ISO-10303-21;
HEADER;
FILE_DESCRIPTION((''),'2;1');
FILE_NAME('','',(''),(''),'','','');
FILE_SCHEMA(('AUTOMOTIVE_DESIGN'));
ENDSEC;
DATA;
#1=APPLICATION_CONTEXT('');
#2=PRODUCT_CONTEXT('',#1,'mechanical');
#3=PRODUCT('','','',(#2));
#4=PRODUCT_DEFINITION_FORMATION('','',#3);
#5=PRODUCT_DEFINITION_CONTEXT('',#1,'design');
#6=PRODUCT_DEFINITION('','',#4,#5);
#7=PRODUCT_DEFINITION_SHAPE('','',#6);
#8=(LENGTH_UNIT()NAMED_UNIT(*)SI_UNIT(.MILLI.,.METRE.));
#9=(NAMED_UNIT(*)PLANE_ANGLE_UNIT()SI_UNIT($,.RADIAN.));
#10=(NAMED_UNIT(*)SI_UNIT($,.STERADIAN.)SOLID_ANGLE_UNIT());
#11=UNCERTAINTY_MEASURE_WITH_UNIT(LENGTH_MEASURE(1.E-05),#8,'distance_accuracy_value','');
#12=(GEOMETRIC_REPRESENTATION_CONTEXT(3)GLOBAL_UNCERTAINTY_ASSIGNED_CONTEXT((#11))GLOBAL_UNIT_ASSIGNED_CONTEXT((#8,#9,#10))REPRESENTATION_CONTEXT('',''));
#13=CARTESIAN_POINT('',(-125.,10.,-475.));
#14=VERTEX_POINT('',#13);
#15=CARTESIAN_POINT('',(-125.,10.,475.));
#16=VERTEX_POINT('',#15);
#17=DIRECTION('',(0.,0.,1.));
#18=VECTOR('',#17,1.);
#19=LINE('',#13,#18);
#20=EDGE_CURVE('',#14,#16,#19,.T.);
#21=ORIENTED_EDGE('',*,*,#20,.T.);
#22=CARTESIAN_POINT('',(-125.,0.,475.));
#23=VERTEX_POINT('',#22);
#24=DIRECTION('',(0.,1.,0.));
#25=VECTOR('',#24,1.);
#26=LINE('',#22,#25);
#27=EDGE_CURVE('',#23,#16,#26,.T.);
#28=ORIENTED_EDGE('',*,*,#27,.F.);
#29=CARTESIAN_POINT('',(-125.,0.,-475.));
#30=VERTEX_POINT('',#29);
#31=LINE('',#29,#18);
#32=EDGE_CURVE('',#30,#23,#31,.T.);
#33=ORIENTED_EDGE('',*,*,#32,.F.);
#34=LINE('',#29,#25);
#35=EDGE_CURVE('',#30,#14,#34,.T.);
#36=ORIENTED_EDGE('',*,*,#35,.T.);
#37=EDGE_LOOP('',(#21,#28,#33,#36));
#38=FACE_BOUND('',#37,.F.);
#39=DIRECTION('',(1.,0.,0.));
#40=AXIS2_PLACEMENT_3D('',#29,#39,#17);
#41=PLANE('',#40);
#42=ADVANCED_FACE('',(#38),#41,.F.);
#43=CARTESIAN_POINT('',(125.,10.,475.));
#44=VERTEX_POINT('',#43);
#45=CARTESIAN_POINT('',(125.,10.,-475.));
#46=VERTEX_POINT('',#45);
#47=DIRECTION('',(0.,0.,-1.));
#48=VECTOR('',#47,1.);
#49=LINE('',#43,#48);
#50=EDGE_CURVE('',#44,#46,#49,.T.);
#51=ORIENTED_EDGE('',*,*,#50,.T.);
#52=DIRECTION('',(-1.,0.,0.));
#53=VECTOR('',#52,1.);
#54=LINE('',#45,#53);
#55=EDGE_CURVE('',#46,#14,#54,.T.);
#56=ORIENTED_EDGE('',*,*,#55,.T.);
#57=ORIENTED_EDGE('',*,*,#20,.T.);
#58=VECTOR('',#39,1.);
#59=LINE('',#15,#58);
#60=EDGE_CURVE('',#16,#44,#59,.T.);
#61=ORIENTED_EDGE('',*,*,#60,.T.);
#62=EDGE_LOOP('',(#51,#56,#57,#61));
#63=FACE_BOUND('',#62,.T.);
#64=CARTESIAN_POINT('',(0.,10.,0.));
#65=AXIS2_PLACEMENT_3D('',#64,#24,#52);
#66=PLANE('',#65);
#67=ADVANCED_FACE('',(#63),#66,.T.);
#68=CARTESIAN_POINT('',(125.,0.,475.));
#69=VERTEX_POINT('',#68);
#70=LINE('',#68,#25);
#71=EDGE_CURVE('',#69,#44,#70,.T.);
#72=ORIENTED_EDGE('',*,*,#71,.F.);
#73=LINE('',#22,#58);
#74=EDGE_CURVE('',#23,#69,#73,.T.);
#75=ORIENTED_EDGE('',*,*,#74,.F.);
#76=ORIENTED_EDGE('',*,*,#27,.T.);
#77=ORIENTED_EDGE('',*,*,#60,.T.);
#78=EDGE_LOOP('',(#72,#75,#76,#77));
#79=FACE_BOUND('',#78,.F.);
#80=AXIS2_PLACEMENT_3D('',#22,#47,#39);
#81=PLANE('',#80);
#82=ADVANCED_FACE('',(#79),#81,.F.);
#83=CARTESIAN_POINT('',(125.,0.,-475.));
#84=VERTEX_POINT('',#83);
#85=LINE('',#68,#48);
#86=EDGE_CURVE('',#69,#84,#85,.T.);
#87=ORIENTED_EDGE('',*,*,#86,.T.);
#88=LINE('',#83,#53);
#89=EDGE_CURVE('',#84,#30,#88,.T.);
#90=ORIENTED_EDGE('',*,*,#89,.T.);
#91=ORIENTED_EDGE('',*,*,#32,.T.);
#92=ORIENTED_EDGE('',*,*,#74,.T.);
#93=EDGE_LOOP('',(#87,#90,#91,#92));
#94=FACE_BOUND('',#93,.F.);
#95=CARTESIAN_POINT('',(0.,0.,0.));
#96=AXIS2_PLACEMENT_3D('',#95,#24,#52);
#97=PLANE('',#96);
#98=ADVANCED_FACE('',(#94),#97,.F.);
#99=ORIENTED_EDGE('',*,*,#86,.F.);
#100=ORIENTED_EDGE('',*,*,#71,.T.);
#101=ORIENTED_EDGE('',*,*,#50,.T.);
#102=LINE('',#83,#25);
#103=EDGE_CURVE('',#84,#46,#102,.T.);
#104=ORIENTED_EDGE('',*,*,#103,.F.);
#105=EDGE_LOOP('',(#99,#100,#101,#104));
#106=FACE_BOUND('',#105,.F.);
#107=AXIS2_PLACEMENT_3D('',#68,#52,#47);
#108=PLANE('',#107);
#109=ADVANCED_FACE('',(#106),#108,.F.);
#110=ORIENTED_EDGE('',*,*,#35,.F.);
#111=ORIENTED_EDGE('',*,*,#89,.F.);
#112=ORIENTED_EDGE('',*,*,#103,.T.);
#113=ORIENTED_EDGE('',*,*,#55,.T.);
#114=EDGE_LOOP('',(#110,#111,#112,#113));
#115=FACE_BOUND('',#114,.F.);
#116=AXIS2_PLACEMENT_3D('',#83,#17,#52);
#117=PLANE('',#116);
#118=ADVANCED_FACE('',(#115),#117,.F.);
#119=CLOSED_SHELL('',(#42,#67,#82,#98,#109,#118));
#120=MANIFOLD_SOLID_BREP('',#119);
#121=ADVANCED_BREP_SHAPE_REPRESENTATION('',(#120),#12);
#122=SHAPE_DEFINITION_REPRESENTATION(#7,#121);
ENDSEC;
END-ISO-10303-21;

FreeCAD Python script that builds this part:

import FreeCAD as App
import Part
import Sketcher
from FreeCAD import Vector


def add_polygon(sketch, points):
    """Adds a closed chain of lines whose ends are joined by coincident constraints."""
    first, n = sketch.GeometryCount, len(points)
    for a, b in zip(points, points[1:] + points[:1]):
        sketch.addGeometry(Part.LineSegment(App.Vector(*a, 0), App.Vector(*b, 0)), False)
    for i in range(n):
        sketch.addConstraint(Sketcher.Constraint("Coincident", first + i, 2, first + (i + 1) % n, 1))

doc = App.newDocument("Part")
body = doc.addObject("PartDesign::Body", "Body")

# Sketch on XZ plane
sketch1 = body.newObject("Sketcher::SketchObject", "Sketch")
sketch1.AttachmentSupport = (doc.getObject("XZ_Plane"), [""])
sketch1.MapMode = "FlatFace"
add_polygon(sketch1, [(125, 475), (125, -475), (-125, -475), (-125, 475)])  # lines 0-3
sketch1.addConstraint([
    Sketcher.Constraint("Vertical", 0),
    Sketcher.Constraint("Horizontal", 1),
    Sketcher.Constraint("Vertical", 2),
    Sketcher.Constraint("Horizontal", 3),
    Sketcher.Constraint("Symmetric", 0, 2, 2, 2, -1, 1),
    Sketcher.Constraint("DistanceX", 1, 2, 1, 1, 250.0),
    Sketcher.Constraint("DistanceY", 0, 2, 0, 1, 950.0),
])
pad1 = body.newObject("PartDesign::Pad", "Pad")
pad1.Profile = sketch1
pad1.Length = 10
pad1.Reversed = True

doc.recompute()
